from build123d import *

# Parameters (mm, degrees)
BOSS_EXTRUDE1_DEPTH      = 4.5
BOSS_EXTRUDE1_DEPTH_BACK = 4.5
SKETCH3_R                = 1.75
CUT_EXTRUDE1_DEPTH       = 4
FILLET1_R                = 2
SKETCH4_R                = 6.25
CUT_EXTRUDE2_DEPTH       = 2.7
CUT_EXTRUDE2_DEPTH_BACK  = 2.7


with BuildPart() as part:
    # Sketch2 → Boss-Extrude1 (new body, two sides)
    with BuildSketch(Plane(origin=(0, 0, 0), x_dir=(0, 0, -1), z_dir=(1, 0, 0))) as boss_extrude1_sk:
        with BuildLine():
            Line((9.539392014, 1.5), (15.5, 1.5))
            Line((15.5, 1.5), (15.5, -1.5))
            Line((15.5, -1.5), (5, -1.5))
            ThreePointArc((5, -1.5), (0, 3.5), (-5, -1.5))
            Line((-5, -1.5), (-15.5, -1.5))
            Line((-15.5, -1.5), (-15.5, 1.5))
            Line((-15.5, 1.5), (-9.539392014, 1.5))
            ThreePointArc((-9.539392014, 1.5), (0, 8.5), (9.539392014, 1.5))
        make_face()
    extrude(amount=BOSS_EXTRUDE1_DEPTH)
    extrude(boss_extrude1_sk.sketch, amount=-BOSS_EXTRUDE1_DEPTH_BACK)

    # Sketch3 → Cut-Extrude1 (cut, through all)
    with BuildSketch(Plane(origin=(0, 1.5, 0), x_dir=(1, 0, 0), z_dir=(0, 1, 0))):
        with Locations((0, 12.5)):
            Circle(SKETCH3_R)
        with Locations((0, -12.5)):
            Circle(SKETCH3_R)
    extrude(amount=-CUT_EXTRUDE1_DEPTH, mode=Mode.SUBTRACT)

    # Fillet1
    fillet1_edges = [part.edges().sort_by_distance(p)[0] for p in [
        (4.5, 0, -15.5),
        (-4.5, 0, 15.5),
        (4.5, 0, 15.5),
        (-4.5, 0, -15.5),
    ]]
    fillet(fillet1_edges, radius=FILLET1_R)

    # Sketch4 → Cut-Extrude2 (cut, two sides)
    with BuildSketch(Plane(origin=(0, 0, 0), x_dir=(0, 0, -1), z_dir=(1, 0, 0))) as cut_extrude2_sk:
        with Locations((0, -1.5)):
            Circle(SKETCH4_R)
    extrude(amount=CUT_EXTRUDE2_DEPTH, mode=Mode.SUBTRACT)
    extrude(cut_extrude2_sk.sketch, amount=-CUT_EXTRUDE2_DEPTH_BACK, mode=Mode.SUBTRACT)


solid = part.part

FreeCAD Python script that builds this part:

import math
import FreeCAD as App
import Part
import Sketcher
Q = App.Units.Quantity


def edges_at(feature, points):
    """Names of the edges that pass closest to the given points."""
    edges = feature.Shape.Edges
    near = lambda p: min(range(len(edges)), key=lambda i: edges[i].distToShape(Part.Vertex(*p))[0])
    return sorted({f"Edge{near(p) + 1}" for p in points})

doc = App.newDocument("Part")
body = doc.addObject("PartDesign::Body", "Body")

sketch1 = body.newObject("Sketcher::SketchObject", "Sketch")
sketch1.AttachmentSupport = (doc.getObject("YZ_Plane"), [""])
sketch1.MapMode = "FlatFace"
sketch1.addGeometry([
    Part.LineSegment(App.Vector(1.5, -15.5, 0), App.Vector(1.5, -9.5, 0)),
    Part.ArcOfCircle(Part.Circle(App.Vector(-1.5, 0, 0), App.Vector(0, 0, 1), 10), math.radians(-73), math.radians(73)),
    Part.LineSegment(App.Vector(1.5, 9.5, 0), App.Vector(1.5, 15.5, 0)),
    Part.LineSegment(App.Vector(1.5, 15.5, 0), App.Vector(-1.5, 15.5, 0)),
    Part.LineSegment(App.Vector(-1.5, 15.5, 0), App.Vector(-1.5, 5, 0)),
    Part.ArcOfCircle(Part.Circle(App.Vector(-1.5, 0, 0), App.Vector(0, 0, 1), 5), math.radians(-90), math.radians(90)),
    Part.LineSegment(App.Vector(-1.5, -5, 0), App.Vector(-1.5, -15.5, 0)),
    Part.LineSegment(App.Vector(-1.5, -15.5, 0), App.Vector(1.5, -15.5, 0)),
], False)
sketch1.addConstraint([
    Sketcher.Constraint("Coincident", 0, 2, 1, 1),
    Sketcher.Constraint("Coincident", 1, 2, 2, 1),
    Sketcher.Constraint("Coincident", 2, 2, 3, 1),
    Sketcher.Constraint("Coincident", 3, 2, 4, 1),
    Sketcher.Constraint("Coincident", 4, 2, 5, 2),
    Sketcher.Constraint("Coincident", 5, 1, 6, 1),
    Sketcher.Constraint("Coincident", 6, 2, 7, 1),
    Sketcher.Constraint("Coincident", 7, 2, 0, 1),
    Sketcher.Constraint("Vertical", 0),
    Sketcher.Constraint("Vertical", 2),
    Sketcher.Constraint("Horizontal", 3),
    Sketcher.Constraint("Vertical", 4),
    Sketcher.Constraint("Vertical", 6),
    Sketcher.Constraint("Horizontal", 7),
    Sketcher.Constraint("Coincident", 5, 3, 1, 3),
    Sketcher.Constraint("Symmetric", 2, 2, 6, 2, -1, 1),
    Sketcher.Constraint("Symmetric", 0, 2, 1, 2, -1),
    Sketcher.Constraint("Vertical", 5, 3, 3, 2),
    Sketcher.Constraint("Vertical", 4, 2, 5, 1),
    Sketcher.Constraint("Radius", 1, Q("10 mm")),
    Sketcher.Constraint("Radius", 5, Q("5 mm")),
    Sketcher.Constraint("DistanceX", 3, 2, 3, 1, Q("3 mm")),
    Sketcher.Constraint("DistanceY", 4, 2, 4, 1, Q("10.5 mm")),
])
pad1 = body.newObject("PartDesign::Pad", "Pad")
pad1.Profile = sketch1
pad1.Type = "TwoLengths"
pad1.Length = 4.5
pad1.Length2 = 4.5

sketch2 = body.newObject("Sketcher::SketchObject", "Sketch001")
sketch2.AttachmentSupport = (doc.getObject("XZ_Plane"), [""])
sketch2.MapMode = "FlatFace"
sketch2.AttachmentOffset = App.Placement(App.Vector(0, 0, -1.5), App.Rotation())
sketch2.addGeometry([
    Part.Circle(App.Vector(0, -12.5, 0), App.Vector(0, 0, 1), 1.8),
    Part.Circle(App.Vector(0, 12.5, 0), App.Vector(0, 0, 1), 1.8),
], False)
sketch2.addConstraint([
    Sketcher.Constraint("Equal", 0, 1),
    Sketcher.Constraint("Symmetric", 0, 3, 1, 3, -1, 1),
    Sketcher.Constraint("PointOnObject", 0, 3, -2),
    Sketcher.Constraint("Diameter", 0, Q("3.5 mm")),
    Sketcher.Constraint("DistanceY", 0, 3, 1, 3, Q("25 mm")),
])
pocket1 = body.newObject("PartDesign::Pocket", "Pocket")
pocket1.Profile = sketch2
pocket1.Type = "ThroughAll"
pocket1.Reversed = True
doc.recompute()

fillet = body.newObject("PartDesign::Fillet", "Fillet")
fillet.Base = (pocket1, edges_at(pocket1, [
    (4.5, 0, -15.5),
    (-4.5, 0, 15.5),
    (4.5, 0, 15.5),
    (-4.5, 0, -15.5),
]))
fillet.Radius = 2

sketch3 = body.newObject("Sketcher::SketchObject", "Sketch002")
sketch3.AttachmentSupport = (doc.getObject("YZ_Plane"), [""])
sketch3.MapMode = "FlatFace"
sketch3.addGeometry(Part.Circle(App.Vector(-2, 0, 0), App.Vector(0, 0, 1), 6), False)
sketch3.addConstraint([
    Sketcher.Constraint("PointOnObject", 0, 3, -1),
    Sketcher.Constraint("Diameter", 0, Q("12.5 mm")),
    Sketcher.Constraint("DistanceX", 0, 3, -1, 1, Q("1.5 mm")),
])
pocket2 = body.newObject("PartDesign::Pocket", "Pocket001")
pocket2.Profile = sketch3
pocket2.Type = "TwoLengths"
pocket2.Length = 2.7
pocket2.Length2 = 2.7
pocket2.Reversed = True

doc.recompute()
